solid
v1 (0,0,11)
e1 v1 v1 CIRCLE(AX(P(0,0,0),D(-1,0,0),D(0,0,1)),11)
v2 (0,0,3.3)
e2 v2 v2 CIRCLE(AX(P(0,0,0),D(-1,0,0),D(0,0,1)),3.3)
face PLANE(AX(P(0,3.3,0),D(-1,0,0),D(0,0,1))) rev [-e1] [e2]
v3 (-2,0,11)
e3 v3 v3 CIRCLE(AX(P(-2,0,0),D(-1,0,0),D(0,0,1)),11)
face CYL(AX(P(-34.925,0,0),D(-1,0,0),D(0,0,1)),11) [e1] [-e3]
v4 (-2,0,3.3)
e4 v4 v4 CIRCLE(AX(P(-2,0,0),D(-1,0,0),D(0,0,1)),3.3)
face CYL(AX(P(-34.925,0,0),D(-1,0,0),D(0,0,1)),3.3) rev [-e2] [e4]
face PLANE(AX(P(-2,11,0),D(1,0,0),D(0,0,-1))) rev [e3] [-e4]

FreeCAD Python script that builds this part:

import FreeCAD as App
import Part
import Sketcher
from FreeCAD import Vector

doc = App.newDocument("Part")
body = doc.addObject("PartDesign::Body", "Body")

# Sketch on XY plane
sketch1 = body.newObject("Sketcher::SketchObject", "Sketch")
sketch1.AttachmentSupport = (doc.getObject("XY_Plane"), [""])
sketch1.MapMode = "FlatFace"
sketch1.addGeometry([
    Part.LineSegment(Vector(-2, 11, 0), Vector(-2, 3.3, 0)),
    Part.LineSegment(Vector(-2, 3.3, 0), Vector(0, 3.3, 0)),
    Part.LineSegment(Vector(0, 3.3, 0), Vector(0, 11, 0)),
    Part.LineSegment(Vector(0, 11, 0), Vector(-2, 11, 0)),
], False)
sketch1.addConstraint([
    Sketcher.Constraint("Coincident", 0, 2, 1, 1),
    Sketcher.Constraint("Coincident", 1, 2, 2, 1),
    Sketcher.Constraint("Coincident", 2, 2, 3, 1),
    Sketcher.Constraint("Coincident", 3, 2, 0, 1),
    Sketcher.Constraint("Vertical", 0),
    Sketcher.Constraint("Horizontal", 1),
    Sketcher.Constraint("Vertical", 2),
    Sketcher.Constraint("Horizontal", 3),
    Sketcher.Constraint("PointOnObject", 1, 2, -2),
    Sketcher.Constraint("DistanceX", 1, 1, 1, 2, 2.0),
    Sketcher.Constraint("DistanceY", 0, 2, 0, 1, 7.7),
    Sketcher.Constraint("DistanceY", -1, 1, 2, 2, 11.0),
])
revolution = body.newObject("PartDesign::Revolution", "Revolution")
revolution.Profile = sketch1
revolution.ReferenceAxis = (sketch1, ["H_Axis"])
revolution.Angle = 360

doc.recompute()
